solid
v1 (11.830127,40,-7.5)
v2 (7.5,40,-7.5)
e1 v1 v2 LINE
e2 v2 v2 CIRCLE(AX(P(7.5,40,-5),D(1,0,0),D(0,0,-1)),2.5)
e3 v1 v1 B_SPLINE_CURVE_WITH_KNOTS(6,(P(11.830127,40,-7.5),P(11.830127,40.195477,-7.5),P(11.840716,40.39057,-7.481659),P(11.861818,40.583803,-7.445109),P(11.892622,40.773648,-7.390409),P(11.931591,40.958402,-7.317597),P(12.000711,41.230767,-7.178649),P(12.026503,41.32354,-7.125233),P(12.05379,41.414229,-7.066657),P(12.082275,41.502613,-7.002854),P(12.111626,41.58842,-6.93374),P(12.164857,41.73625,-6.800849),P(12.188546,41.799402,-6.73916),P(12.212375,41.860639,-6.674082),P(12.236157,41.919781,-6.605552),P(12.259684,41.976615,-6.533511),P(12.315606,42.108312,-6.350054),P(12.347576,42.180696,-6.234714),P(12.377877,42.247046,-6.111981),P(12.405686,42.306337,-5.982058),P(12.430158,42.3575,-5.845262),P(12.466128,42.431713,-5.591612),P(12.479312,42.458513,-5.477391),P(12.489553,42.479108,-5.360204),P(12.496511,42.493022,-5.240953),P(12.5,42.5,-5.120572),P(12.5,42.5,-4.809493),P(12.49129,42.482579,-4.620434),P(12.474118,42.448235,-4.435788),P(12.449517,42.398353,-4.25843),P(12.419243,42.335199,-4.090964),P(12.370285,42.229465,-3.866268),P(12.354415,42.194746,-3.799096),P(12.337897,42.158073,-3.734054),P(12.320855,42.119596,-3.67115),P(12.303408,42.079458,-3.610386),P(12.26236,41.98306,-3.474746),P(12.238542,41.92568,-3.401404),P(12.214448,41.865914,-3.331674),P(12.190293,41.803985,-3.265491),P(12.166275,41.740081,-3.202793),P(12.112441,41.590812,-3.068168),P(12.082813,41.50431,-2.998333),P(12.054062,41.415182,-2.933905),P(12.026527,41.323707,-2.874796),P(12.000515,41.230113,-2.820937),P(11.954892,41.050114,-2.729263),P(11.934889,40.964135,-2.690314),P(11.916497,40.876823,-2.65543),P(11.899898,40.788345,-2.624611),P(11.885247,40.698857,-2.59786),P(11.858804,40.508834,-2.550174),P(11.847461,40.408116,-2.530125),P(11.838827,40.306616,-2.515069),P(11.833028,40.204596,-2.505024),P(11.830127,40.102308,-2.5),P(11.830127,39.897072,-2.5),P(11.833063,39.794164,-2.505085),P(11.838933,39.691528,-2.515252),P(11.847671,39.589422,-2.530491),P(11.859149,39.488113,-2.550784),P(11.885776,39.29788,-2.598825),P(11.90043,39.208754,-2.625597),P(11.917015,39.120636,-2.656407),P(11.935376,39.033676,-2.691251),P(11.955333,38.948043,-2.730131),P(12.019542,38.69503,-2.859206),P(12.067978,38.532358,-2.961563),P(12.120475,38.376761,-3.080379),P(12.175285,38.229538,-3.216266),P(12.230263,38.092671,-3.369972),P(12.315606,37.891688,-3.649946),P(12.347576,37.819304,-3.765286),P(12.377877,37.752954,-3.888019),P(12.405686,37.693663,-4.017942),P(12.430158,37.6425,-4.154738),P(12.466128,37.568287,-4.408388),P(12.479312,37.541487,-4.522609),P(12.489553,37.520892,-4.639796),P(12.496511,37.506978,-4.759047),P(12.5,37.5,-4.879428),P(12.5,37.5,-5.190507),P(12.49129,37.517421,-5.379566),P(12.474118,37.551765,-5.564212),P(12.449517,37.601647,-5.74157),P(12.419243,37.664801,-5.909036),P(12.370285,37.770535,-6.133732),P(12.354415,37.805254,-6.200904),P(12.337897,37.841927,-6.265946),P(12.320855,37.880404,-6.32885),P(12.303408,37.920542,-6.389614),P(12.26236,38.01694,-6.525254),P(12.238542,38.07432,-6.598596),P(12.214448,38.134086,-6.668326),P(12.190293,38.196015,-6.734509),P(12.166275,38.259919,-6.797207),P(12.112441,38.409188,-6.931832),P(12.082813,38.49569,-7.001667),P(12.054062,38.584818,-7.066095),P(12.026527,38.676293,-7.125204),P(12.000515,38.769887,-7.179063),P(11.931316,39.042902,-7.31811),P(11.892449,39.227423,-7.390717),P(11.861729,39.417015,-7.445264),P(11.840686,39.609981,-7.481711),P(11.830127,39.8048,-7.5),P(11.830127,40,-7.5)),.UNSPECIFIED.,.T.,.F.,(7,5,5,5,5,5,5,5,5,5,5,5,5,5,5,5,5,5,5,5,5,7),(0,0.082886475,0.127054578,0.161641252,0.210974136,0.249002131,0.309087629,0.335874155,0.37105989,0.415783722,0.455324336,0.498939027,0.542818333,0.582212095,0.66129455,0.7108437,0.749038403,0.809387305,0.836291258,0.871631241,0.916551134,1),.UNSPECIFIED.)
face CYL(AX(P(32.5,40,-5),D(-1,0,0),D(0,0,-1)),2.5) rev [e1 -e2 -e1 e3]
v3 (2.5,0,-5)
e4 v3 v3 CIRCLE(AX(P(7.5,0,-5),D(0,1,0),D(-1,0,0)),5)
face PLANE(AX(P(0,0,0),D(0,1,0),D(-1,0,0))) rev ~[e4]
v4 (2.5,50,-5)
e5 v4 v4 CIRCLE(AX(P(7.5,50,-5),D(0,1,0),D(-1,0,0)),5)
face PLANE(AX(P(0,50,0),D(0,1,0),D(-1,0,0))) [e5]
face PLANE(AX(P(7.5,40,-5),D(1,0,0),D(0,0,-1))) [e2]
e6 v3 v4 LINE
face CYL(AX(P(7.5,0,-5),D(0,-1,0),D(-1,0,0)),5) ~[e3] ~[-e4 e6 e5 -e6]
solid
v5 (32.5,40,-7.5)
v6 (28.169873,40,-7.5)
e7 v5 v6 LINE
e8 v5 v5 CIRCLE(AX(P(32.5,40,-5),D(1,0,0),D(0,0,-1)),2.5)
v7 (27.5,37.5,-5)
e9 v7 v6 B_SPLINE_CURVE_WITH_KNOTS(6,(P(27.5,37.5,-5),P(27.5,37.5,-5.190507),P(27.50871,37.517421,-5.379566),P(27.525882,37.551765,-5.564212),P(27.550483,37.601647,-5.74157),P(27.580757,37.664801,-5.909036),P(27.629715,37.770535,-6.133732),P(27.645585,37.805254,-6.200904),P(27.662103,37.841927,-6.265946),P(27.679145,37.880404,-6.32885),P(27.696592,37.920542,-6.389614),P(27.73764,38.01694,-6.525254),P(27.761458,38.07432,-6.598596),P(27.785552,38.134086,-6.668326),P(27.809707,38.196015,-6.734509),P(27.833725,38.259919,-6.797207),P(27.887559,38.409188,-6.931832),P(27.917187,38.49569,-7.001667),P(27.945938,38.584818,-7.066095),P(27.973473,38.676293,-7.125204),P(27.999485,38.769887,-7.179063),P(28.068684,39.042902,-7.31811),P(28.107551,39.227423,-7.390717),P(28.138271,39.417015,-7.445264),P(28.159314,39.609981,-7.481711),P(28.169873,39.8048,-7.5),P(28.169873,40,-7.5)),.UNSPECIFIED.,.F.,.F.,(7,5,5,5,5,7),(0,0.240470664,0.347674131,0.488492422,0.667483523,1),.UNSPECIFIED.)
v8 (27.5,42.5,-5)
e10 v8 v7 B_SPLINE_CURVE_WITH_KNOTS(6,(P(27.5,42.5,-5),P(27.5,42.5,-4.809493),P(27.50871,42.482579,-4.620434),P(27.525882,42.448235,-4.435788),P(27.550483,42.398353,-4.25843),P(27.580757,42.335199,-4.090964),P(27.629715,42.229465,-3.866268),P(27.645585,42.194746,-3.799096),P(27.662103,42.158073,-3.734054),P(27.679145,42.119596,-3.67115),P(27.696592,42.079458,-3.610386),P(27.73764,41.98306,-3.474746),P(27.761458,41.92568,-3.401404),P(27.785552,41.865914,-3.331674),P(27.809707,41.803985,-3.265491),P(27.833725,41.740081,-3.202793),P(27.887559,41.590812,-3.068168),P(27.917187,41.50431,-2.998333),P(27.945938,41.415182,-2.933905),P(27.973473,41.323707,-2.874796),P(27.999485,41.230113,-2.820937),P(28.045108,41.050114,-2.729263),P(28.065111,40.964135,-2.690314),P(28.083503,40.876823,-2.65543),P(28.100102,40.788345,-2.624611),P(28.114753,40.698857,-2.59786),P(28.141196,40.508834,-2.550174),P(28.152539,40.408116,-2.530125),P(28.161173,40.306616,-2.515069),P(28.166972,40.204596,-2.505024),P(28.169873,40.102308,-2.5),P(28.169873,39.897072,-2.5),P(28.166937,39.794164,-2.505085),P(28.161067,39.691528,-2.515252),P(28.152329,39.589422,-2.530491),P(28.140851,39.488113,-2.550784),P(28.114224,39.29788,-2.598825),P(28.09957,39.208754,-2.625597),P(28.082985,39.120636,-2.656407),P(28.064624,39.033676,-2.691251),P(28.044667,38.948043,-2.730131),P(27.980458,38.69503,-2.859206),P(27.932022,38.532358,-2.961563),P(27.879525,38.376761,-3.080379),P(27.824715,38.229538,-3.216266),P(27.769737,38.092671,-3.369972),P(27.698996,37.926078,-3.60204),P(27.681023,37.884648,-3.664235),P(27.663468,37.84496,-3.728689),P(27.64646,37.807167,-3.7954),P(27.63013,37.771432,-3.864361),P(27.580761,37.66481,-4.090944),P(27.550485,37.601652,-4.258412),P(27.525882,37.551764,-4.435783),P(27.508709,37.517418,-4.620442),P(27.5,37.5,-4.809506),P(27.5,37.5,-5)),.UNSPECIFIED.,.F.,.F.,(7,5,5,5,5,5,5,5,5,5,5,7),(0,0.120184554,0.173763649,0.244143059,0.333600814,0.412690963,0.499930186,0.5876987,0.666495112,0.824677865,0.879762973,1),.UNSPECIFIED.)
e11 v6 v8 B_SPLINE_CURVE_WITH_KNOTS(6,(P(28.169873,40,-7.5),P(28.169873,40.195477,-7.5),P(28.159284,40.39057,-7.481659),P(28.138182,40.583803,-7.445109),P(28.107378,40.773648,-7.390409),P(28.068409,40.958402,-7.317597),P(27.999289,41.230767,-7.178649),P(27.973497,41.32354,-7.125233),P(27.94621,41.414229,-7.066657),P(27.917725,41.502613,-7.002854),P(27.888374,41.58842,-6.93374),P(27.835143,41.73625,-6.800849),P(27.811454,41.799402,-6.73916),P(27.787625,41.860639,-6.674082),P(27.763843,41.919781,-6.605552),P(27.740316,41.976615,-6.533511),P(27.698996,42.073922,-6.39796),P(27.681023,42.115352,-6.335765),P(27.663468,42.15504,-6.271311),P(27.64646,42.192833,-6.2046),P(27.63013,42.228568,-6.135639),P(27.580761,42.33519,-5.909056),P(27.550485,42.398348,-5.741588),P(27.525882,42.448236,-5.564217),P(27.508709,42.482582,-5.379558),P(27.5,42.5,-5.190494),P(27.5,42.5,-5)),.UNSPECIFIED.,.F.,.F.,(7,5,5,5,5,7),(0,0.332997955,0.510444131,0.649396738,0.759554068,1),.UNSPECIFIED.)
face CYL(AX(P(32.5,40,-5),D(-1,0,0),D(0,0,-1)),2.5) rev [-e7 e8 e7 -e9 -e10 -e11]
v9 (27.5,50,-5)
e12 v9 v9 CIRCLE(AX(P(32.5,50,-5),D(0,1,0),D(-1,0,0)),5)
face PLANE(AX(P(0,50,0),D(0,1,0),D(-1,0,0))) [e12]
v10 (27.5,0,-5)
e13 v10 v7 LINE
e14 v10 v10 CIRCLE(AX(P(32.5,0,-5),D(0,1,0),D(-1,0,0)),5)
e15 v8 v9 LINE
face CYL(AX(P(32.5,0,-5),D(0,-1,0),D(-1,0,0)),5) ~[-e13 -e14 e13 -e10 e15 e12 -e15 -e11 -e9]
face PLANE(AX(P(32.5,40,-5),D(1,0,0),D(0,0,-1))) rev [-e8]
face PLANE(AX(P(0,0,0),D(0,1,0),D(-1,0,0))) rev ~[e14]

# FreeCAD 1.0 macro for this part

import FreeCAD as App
import Part
import Sketcher
from FreeCAD import Vector


def add_polygon(sketch, points):
    """Adds a closed chain of lines whose ends are joined by coincident constraints."""
    first, n = sketch.GeometryCount, len(points)
    for a, b in zip(points, points[1:] + points[:1]):
        sketch.addGeometry(Part.LineSegment(App.Vector(*a, 0), App.Vector(*b, 0)), False)
    for i in range(n):
        sketch.addConstraint(Sketcher.Constraint("Coincident", first + i, 2, first + (i + 1) % n, 1))

doc = App.newDocument("Part")
body = doc.addObject("PartDesign::Body", "Body")
body.AllowCompound = True

# Sketch on XZ plane
sketch1 = body.newObject("Sketcher::SketchObject", "Sketch")
sketch1.AttachmentSupport = (doc.getObject("XZ_Plane"), [""])
sketch1.MapMode = "FlatFace"
sketch1.addGeometry(Part.Circle(Vector(8, -5, 0), Vector(0, 0, 1), 5), False)
sketch1.addGeometry(Part.Circle(Vector(32, -5, 0), Vector(0, 0, 1), 5), False)
sketch1.addConstraint(Sketcher.Constraint("Equal", 0, 1))
sketch1.addConstraint(Sketcher.Constraint("Horizontal", 0, 3, 1, 3))
sketch1.addConstraint(Sketcher.Constraint("Diameter", 0, 10.0))
sketch1.addConstraint(Sketcher.Constraint("DistanceY", 0, 3, -1, 1, 5.0))
sketch1.addConstraint(Sketcher.Constraint("DistanceX", 0, 3, 1, 3, 25.0))
sketch1.addConstraint(Sketcher.Constraint("DistanceX", -1, 1, 0, 3, 7.5))
pad1 = body.newObject("PartDesign::Pad", "Pad")
pad1.Profile = sketch1
pad1.Length = 50
pad1.Reversed = True

# Sketch on XZ plane
sketch2 = body.newObject("Sketcher::SketchObject", "Sketch001")
sketch2.AttachmentSupport = (doc.getObject("XZ_Plane"), [""])
sketch2.MapMode = "FlatFace"
sketch2.AttachmentOffset = App.Placement(Vector(0, 0, -40), App.Rotation())
add_polygon(sketch2, [(7.5, -7.5), (7.5, -5), (32.5, -5), (32.5, -7.5)])  # lines 0-3
sketch2.addGeometry(Part.LineSegment(Vector(7.5, -5, 0), Vector(32.5, -5, 0)), True)  # axis
sketch2.addConstraint(Sketcher.Constraint("Vertical", 0))
sketch2.addConstraint(Sketcher.Constraint("Horizontal", 1))
sketch2.addConstraint(Sketcher.Constraint("Vertical", 2))
sketch2.addConstraint(Sketcher.Constraint("Horizontal", 3))
sketch2.addConstraint(Sketcher.Constraint("Horizontal", 4))
sketch2.addConstraint(Sketcher.Constraint("Coincident", 4, 1, 0, 2))
sketch2.addConstraint(Sketcher.Constraint("Vertical", 2, 2, 4, 2))
sketch2.addConstraint(Sketcher.Constraint("DistanceY", 0, 1, 0, 2, 2.5))
sketch2.addConstraint(Sketcher.Constraint("DistanceX", 1, 1, 1, 2, 25.0))
sketch2.addConstraint(Sketcher.Constraint("DistanceY", 0, 2, -1, 1, 5.0))
sketch2.addConstraint(Sketcher.Constraint("DistanceX", -1, 1, 0, 2, 7.5))
groove = body.newObject("PartDesign::Groove", "Groove")
groove.Profile = sketch2
groove.ReferenceAxis = (sketch2, ["Axis0"])
groove.Angle = 360

doc.recompute()
